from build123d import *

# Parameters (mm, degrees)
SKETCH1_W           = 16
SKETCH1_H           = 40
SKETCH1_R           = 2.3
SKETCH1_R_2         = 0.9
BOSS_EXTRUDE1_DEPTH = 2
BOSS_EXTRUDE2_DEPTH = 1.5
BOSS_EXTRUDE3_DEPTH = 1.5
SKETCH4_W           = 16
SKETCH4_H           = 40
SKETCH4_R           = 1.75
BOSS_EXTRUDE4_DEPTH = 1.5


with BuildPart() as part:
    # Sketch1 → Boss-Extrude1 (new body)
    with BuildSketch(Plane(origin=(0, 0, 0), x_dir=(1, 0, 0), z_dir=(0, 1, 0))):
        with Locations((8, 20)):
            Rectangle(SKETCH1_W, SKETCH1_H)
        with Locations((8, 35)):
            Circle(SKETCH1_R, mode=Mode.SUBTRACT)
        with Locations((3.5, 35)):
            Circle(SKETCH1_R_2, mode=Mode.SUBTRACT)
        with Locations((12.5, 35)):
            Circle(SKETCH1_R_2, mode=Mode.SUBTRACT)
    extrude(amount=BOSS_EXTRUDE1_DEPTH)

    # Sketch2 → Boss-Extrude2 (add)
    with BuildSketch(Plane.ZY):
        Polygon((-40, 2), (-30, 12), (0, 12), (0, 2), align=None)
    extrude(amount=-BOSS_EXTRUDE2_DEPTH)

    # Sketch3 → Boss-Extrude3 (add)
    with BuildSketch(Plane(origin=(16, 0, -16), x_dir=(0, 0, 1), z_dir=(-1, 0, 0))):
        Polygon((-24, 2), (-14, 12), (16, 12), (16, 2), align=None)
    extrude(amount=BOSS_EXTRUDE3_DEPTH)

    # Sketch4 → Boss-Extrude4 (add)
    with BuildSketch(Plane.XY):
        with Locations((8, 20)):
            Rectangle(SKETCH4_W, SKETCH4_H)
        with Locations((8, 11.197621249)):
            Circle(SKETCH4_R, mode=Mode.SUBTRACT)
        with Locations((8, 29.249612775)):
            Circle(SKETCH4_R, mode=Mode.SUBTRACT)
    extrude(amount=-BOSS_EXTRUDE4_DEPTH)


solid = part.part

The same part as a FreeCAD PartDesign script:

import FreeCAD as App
import Part
import Sketcher

V = App.Vector

doc = App.newDocument("Part")
body = doc.addObject("PartDesign::Body", "Body")

sketch1 = body.newObject("Sketcher::SketchObject", "Sketch")
sketch1.AttachmentSupport = (doc.getObject("XZ_Plane"), [""])
sketch1.MapMode = "FlatFace"
sketch1.addGeometry(Part.LineSegment(V(0, -40, 0), V(0, 0, 0)), False)
sketch1.addGeometry(Part.LineSegment(V(0, 0, 0), V(16, 0, 0)), False)
sketch1.addGeometry(Part.LineSegment(V(16, 0, 0), V(16, -40, 0)), False)
sketch1.addGeometry(Part.LineSegment(V(16, -40, 0), V(0, -40, 0)), False)
sketch1.addGeometry(Part.Circle(V(3.5, -35, 0), V(0, 0, 1), 0.9), False)
sketch1.addGeometry(Part.Circle(V(8, -35, 0), V(0, 0, 1), 2.3), False)
sketch1.addGeometry(Part.Circle(V(12.5, -35, 0), V(0, 0, 1), 0.9), False)
sketch1.addConstraint(Sketcher.Constraint("Coincident", 0, 2, 1, 1))
sketch1.addConstraint(Sketcher.Constraint("Coincident", 1, 2, 2, 1))
sketch1.addConstraint(Sketcher.Constraint("Coincident", 2, 2, 3, 1))
sketch1.addConstraint(Sketcher.Constraint("Coincident", 3, 2, 0, 1))
sketch1.addConstraint(Sketcher.Constraint("Vertical", 0))
sketch1.addConstraint(Sketcher.Constraint("Horizontal", 1))
sketch1.addConstraint(Sketcher.Constraint("Vertical", 2))
sketch1.addConstraint(Sketcher.Constraint("Horizontal", 3))
sketch1.addConstraint(Sketcher.Constraint("Coincident", 0, 2, -1, 1))
sketch1.addConstraint(Sketcher.Constraint("Equal", 4, 6))
sketch1.addConstraint(Sketcher.Constraint("Horizontal", 4, 3, 5, 3))
sketch1.addConstraint(Sketcher.Constraint("Horizontal", 5, 3, 6, 3))
sketch1.addConstraint(Sketcher.Constraint("Diameter", 4, 1.8))
sketch1.addConstraint(Sketcher.Constraint("Diameter", 5, 4.6))
sketch1.addConstraint(Sketcher.Constraint("DistanceX", 1, 1, 1, 2, 16.0))
sketch1.addConstraint(Sketcher.Constraint("DistanceY", 0, 1, 0, 2, 40.0))
sketch1.addConstraint(Sketcher.Constraint("DistanceY", 4, 3, -1, 1, 35.0))
sketch1.addConstraint(Sketcher.Constraint("DistanceX", -1, 1, 5, 3, 8.0))
sketch1.addConstraint(Sketcher.Constraint("DistanceX", 4, 3, 6, 3, 9.0))
sketch1.addConstraint(Sketcher.Constraint("DistanceX", -1, 1, 4, 3, 3.5))
pad1 = body.newObject("PartDesign::Pad", "Pad")
pad1.Profile = sketch1
pad1.Length = 2
pad1.Reversed = True

sketch2 = body.newObject("Sketcher::SketchObject", "Sketch001")
sketch2.AttachmentSupport = (doc.getObject("YZ_Plane"), [""])
sketch2.MapMode = "FlatFace"
sketch2.addGeometry(Part.LineSegment(V(12, -30, 0), V(2, -40, 0)), False)
sketch2.addGeometry(Part.LineSegment(V(2, -40, 0), V(2, 0, 0)), False)
sketch2.addGeometry(Part.LineSegment(V(2, 0, 0), V(12, 0, 0)), False)
sketch2.addGeometry(Part.LineSegment(V(12, 0, 0), V(12, -30, 0)), False)
sketch2.addConstraint(Sketcher.Constraint("Coincident", 0, 2, 1, 1))
sketch2.addConstraint(Sketcher.Constraint("Coincident", 1, 2, 2, 1))
sketch2.addConstraint(Sketcher.Constraint("Coincident", 2, 2, 3, 1))
sketch2.addConstraint(Sketcher.Constraint("Coincident", 3, 2, 0, 1))
sketch2.addConstraint(Sketcher.Constraint("Vertical", 1))
sketch2.addConstraint(Sketcher.Constraint("Horizontal", 2))
sketch2.addConstraint(Sketcher.Constraint("Vertical", 3))
sketch2.addConstraint(Sketcher.Constraint("PointOnObject", 1, 2, -1))
sketch2.addConstraint(Sketcher.Constraint("DistanceX", 2, 1, 2, 2, 10.0))
sketch2.addConstraint(Sketcher.Constraint("DistanceY", 1, 1, 1, 2, 40.0))
sketch2.addConstraint(Sketcher.Constraint("DistanceY", 3, 2, 3, 1, 30.0))
sketch2.addConstraint(Sketcher.Constraint("DistanceX", -1, 1, 0, 2, 2.0))
pad2 = body.newObject("PartDesign::Pad", "Pad001")
pad2.Profile = sketch2
pad2.Length = 1.5

sketch3 = body.newObject("Sketcher::SketchObject", "Sketch002")
sketch3.AttachmentSupport = (doc.getObject("YZ_Plane"), [""])
sketch3.MapMode = "FlatFace"
sketch3.AttachmentOffset = App.Placement(V(0, 0, 16), App.Rotation())
sketch3.addGeometry(Part.LineSegment(V(12, -30, 0), V(2, -40, 0)), False)
sketch3.addGeometry(Part.LineSegment(V(2, -40, 0), V(2, 0, 0)), False)
sketch3.addGeometry(Part.LineSegment(V(2, 0, 0), V(12, 0, 0)), False)
sketch3.addGeometry(Part.LineSegment(V(12, 0, 0), V(12, -30, 0)), False)
sketch3.addConstraint(Sketcher.Constraint("Coincident", 0, 2, 1, 1))
sketch3.addConstraint(Sketcher.Constraint("Coincident", 1, 2, 2, 1))
sketch3.addConstraint(Sketcher.Constraint("Coincident", 2, 2, 3, 1))
sketch3.addConstraint(Sketcher.Constraint("Coincident", 3, 2, 0, 1))
sketch3.addConstraint(Sketcher.Constraint("Vertical", 1))
sketch3.addConstraint(Sketcher.Constraint("Horizontal", 2))
sketch3.addConstraint(Sketcher.Constraint("Vertical", 3))
sketch3.addConstraint(Sketcher.Constraint("PointOnObject", 1, 2, -1))
sketch3.addConstraint(Sketcher.Constraint("DistanceX", 2, 1, 2, 2, 10.0))
sketch3.addConstraint(Sketcher.Constraint("DistanceY", 1, 1, 1, 2, 40.0))
sketch3.addConstraint(Sketcher.Constraint("DistanceY", 3, 2, 3, 1, 30.0))
sketch3.addConstraint(Sketcher.Constraint("DistanceX", -1, 1, 0, 2, 2.0))
pad3 = body.newObject("PartDesign::Pad", "Pad002")
pad3.Profile = sketch3
pad3.Length = 1.5
pad3.Reversed = True

sketch4 = body.newObject("Sketcher::SketchObject", "Sketch003")
sketch4.AttachmentSupport = (doc.getObject("XY_Plane"), [""])
sketch4.MapMode = "FlatFace"
sketch4.addGeometry(Part.LineSegment(V(0, 40, 0), V(0, 0, 0)), False)
sketch4.addGeometry(Part.LineSegment(V(0, 0, 0), V(16, 0, 0)), False)
sketch4.addGeometry(Part.LineSegment(V(16, 0, 0), V(16, 40, 0)), False)
sketch4.addGeometry(Part.LineSegment(V(16, 40, 0), V(0, 40, 0)), False)
sketch4.addGeometry(Part.Circle(V(8, 11.197621, 0), V(0, 0, 1), 1.75), False)
sketch4.addGeometry(Part.Circle(V(8, 29.249613, 0), V(0, 0, 1), 1.75), False)
sketch4.addConstraint(Sketcher.Constraint("Coincident", 0, 2, 1, 1))
sketch4.addConstraint(Sketcher.Constraint("Coincident", 1, 2, 2, 1))
sketch4.addConstraint(Sketcher.Constraint("Coincident", 2, 2, 3, 1))
sketch4.addConstraint(Sketcher.Constraint("Coincident", 3, 2, 0, 1))
sketch4.addConstraint(Sketcher.Constraint("Vertical", 0))
sketch4.addConstraint(Sketcher.Constraint("Horizontal", 1))
sketch4.addConstraint(Sketcher.Constraint("Vertical", 2))
sketch4.addConstraint(Sketcher.Constraint("Horizontal", 3))
sketch4.addConstraint(Sketcher.Constraint("Coincident", 0, 2, -1, 1))
sketch4.addConstraint(Sketcher.Constraint("Equal", 4, 5))
sketch4.addConstraint(Sketcher.Constraint("Vertical", 4, 3, 5, 3))
sketch4.addConstraint(Sketcher.Constraint("Diameter", 4, 3.5))
sketch4.addConstraint(Sketcher.Constraint("DistanceX", 1, 1, 1, 2, 16.0))
sketch4.addConstraint(Sketcher.Constraint("DistanceY", 0, 2, 0, 1, 40.0))
sketch4.addConstraint(Sketcher.Constraint("DistanceX", -1, 1, 4, 3, 8.0))
sketch4.addConstraint(Sketcher.Constraint("DistanceY", -1, 1, 4, 3, 11.197621))
sketch4.addConstraint(Sketcher.Constraint("DistanceY", 4, 3, 5, 3, 18.051992))
pad4 = body.newObject("PartDesign::Pad", "Pad003")
pad4.Profile = sketch4
pad4.Length = 1.5
pad4.Reversed = True

doc.recompute()
